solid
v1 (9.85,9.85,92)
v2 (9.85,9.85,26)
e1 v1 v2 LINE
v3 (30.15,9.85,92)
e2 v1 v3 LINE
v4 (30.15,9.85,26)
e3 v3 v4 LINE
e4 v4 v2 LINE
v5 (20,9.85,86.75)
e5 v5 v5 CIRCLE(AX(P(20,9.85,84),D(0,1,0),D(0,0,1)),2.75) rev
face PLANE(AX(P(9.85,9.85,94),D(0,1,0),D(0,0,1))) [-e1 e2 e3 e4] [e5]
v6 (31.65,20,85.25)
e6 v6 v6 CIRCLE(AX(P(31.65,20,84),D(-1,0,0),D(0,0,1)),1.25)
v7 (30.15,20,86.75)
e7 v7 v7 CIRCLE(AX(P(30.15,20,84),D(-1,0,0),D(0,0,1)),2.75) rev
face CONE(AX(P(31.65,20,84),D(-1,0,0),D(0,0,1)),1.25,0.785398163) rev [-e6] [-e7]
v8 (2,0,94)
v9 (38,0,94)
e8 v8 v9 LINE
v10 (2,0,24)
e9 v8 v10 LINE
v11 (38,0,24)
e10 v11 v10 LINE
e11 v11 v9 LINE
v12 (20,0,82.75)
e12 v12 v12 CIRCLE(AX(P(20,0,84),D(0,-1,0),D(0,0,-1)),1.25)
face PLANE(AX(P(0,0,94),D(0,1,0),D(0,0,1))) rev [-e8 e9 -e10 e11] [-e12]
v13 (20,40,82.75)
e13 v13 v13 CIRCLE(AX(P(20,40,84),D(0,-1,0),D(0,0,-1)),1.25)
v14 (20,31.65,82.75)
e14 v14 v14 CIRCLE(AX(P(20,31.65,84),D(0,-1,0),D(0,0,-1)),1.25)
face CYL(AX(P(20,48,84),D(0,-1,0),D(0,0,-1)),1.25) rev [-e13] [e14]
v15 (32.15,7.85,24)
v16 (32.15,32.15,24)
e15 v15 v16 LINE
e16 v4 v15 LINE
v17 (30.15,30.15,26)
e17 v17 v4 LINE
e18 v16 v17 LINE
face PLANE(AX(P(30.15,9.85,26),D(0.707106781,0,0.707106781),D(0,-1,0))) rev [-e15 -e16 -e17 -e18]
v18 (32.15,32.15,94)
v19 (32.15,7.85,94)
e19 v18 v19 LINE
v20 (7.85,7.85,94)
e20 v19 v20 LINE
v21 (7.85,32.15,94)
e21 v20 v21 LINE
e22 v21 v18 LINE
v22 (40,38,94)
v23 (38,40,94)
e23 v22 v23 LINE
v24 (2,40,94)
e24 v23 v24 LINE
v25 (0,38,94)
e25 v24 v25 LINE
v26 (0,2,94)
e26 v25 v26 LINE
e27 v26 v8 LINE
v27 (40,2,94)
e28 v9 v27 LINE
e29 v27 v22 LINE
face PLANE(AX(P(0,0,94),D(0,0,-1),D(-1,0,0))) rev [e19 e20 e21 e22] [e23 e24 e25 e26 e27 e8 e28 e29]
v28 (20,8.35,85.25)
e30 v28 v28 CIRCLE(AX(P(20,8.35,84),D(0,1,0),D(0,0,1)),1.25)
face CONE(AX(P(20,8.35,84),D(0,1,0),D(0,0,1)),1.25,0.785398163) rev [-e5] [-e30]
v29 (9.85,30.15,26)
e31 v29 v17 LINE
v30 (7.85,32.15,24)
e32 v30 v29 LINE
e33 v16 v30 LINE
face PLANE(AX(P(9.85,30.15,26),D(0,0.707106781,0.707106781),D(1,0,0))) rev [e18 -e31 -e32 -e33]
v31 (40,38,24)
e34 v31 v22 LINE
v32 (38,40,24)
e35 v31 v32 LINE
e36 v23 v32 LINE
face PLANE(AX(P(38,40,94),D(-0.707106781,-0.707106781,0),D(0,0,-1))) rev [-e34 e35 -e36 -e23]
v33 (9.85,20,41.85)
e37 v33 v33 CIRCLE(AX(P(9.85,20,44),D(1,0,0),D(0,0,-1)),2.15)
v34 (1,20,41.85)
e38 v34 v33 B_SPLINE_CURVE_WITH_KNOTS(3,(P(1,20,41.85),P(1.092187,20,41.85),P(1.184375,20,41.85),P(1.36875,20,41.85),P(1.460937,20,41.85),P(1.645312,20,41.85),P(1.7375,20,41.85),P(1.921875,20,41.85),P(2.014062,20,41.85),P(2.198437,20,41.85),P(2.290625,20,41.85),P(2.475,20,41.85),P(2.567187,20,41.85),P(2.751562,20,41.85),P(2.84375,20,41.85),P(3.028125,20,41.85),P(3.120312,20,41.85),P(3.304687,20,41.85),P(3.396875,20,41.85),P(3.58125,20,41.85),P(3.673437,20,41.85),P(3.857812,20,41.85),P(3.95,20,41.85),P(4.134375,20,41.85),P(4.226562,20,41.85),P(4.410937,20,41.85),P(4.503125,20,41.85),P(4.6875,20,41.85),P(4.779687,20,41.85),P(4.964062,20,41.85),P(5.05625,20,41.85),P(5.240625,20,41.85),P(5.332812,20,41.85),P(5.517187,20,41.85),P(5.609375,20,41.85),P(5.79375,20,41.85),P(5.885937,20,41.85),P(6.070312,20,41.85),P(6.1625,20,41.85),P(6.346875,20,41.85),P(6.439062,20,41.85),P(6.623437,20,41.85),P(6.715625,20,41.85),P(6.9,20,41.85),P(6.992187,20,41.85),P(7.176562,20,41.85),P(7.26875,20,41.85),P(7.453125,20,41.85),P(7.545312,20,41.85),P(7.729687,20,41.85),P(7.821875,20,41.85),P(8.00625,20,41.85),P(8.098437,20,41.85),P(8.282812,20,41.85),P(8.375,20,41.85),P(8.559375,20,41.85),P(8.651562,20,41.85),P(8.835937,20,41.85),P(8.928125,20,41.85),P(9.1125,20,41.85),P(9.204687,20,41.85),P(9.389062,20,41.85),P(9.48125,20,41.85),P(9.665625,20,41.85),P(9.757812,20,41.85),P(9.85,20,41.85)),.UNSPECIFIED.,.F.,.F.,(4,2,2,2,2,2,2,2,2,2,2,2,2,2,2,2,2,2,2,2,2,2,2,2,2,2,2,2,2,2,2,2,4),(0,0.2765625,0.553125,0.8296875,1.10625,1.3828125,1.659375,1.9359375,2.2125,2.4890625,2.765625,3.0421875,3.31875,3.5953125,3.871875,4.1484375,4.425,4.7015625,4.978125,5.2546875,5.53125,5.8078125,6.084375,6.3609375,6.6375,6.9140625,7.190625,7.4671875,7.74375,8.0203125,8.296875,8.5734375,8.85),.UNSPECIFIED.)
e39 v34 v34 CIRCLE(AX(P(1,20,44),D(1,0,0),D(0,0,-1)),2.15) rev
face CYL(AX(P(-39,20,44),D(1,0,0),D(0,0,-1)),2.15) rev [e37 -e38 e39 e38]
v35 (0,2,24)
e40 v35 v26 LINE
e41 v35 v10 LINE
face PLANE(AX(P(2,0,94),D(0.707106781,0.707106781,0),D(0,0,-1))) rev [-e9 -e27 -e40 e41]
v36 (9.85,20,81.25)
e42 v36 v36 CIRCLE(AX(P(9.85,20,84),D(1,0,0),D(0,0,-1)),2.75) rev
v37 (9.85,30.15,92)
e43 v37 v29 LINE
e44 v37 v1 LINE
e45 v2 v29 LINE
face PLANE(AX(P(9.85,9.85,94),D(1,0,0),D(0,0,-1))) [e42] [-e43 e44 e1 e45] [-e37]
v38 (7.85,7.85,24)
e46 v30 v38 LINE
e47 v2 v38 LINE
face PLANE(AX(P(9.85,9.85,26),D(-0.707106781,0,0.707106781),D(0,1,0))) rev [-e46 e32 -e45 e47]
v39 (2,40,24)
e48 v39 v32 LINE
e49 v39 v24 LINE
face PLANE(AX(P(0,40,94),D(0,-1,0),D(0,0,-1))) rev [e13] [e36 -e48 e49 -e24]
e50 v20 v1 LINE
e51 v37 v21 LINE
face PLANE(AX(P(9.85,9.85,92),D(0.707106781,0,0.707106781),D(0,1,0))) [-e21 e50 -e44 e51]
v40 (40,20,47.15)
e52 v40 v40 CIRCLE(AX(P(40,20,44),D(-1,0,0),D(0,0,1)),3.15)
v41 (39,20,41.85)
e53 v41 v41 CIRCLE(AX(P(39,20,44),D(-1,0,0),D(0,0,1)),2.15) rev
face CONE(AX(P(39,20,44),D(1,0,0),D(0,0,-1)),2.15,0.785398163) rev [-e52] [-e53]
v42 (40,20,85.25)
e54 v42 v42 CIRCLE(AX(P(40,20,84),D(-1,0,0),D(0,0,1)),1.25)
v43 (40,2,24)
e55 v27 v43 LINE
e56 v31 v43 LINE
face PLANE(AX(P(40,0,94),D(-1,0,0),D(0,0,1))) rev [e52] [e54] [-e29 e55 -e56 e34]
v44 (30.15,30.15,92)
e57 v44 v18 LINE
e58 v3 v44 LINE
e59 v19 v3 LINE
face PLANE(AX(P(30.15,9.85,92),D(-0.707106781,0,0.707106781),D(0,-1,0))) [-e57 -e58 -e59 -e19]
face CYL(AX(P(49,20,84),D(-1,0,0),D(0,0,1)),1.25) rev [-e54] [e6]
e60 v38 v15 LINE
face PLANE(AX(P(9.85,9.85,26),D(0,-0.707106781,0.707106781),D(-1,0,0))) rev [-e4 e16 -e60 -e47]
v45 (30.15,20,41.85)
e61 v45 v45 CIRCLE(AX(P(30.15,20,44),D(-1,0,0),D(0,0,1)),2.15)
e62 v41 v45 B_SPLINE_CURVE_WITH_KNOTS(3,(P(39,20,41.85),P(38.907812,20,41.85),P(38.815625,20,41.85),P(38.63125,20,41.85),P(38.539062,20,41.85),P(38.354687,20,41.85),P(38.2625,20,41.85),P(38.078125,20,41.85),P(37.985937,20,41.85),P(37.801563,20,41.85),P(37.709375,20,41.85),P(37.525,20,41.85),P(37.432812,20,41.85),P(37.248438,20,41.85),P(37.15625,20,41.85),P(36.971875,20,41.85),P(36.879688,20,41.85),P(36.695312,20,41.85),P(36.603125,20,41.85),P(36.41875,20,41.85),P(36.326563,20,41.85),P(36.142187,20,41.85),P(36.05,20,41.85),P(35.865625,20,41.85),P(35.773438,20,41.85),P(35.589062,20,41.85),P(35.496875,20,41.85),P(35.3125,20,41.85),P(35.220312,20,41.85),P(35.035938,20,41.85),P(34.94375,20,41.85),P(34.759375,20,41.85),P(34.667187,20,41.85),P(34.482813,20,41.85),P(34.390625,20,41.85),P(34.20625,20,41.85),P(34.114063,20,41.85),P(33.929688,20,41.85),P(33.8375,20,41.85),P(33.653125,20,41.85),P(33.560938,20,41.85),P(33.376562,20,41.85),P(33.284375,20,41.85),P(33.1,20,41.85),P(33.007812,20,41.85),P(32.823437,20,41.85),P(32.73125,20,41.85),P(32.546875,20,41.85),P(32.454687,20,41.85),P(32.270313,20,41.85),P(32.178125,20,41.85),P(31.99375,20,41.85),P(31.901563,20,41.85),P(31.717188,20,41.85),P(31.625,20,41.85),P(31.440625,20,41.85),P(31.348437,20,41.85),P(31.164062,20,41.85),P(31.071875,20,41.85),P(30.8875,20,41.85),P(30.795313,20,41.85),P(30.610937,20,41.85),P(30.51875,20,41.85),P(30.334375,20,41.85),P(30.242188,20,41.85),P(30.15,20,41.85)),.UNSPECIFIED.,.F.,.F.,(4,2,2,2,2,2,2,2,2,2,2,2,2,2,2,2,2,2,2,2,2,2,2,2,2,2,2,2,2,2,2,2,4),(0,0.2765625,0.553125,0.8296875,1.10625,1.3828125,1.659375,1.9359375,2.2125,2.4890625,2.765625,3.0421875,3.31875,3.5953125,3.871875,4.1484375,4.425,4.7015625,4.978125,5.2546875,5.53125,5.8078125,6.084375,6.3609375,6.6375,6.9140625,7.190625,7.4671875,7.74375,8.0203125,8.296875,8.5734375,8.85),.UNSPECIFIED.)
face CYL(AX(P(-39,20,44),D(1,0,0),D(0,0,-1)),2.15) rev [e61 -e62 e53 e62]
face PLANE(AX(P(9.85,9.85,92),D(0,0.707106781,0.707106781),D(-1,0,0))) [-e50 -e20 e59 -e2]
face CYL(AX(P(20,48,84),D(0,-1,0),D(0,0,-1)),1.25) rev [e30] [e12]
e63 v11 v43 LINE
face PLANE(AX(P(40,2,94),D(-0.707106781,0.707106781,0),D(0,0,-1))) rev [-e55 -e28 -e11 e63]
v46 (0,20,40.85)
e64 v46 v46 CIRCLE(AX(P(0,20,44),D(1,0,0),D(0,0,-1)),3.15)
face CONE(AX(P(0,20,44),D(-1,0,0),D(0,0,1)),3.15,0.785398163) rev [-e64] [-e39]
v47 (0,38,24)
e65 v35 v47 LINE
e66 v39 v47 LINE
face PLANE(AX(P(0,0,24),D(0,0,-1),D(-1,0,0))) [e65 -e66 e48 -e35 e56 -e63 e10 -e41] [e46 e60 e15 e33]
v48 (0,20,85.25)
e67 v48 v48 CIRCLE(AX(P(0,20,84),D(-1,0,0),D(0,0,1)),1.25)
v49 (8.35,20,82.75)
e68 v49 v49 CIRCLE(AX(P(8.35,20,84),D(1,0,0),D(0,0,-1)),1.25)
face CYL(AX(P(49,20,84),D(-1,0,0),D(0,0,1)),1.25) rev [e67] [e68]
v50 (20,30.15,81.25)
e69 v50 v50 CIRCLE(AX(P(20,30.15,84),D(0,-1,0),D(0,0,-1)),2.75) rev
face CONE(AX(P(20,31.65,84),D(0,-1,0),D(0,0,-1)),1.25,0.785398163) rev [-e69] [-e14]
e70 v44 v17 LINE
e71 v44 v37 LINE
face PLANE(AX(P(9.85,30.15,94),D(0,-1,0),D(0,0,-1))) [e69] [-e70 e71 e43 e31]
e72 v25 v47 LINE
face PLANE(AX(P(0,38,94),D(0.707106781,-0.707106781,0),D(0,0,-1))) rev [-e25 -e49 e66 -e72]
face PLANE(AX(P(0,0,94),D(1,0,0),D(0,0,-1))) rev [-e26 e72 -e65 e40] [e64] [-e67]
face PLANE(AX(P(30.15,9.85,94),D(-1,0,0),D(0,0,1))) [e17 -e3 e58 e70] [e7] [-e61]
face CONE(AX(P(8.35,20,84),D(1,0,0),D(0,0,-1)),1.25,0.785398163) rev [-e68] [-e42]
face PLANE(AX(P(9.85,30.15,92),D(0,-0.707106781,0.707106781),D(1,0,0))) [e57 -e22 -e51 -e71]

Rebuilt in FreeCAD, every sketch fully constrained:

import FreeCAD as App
import Part
import Sketcher
from FreeCAD import Vector
Q = App.Units.Quantity


def edges_at(feature, points):
    """Names of the edges that pass closest to the given points."""
    edges = feature.Shape.Edges
    near = lambda p: min(range(len(edges)), key=lambda i: edges[i].distToShape(Part.Vertex(*p))[0])
    return sorted({f"Edge{near(p) + 1}" for p in points})

doc = App.newDocument("Part")
body = doc.addObject("PartDesign::Body", "Body")

sketch1 = body.newObject("Sketcher::SketchObject", "Sketch")
sketch1.AttachmentSupport = (doc.getObject("XY_Plane"), [""])
sketch1.MapMode = "FlatFace"
sketch1.addGeometry([
    Part.LineSegment(Vector(0, 40, 0), Vector(0, 0, 0)),
    Part.LineSegment(Vector(0, 0, 0), Vector(40, 0, 0)),
    Part.LineSegment(Vector(40, 0, 0), Vector(40, 40, 0)),
    Part.LineSegment(Vector(40, 40, 0), Vector(0, 40, 0)),
    Part.LineSegment(Vector(30, 10, 0), Vector(10, 10, 0)),
    Part.LineSegment(Vector(10, 10, 0), Vector(10, 30, 0)),
    Part.LineSegment(Vector(10, 30, 0), Vector(30, 30, 0)),
    Part.LineSegment(Vector(30, 30, 0), Vector(30, 10, 0)),
], False)
sketch1.addConstraint([
    Sketcher.Constraint("Coincident", 0, 2, 1, 1),
    Sketcher.Constraint("Coincident", 1, 2, 2, 1),
    Sketcher.Constraint("Coincident", 2, 2, 3, 1),
    Sketcher.Constraint("Coincident", 3, 2, 0, 1),
    Sketcher.Constraint("Coincident", 4, 2, 5, 1),
    Sketcher.Constraint("Coincident", 5, 2, 6, 1),
    Sketcher.Constraint("Coincident", 6, 2, 7, 1),
    Sketcher.Constraint("Coincident", 7, 2, 4, 1),
    Sketcher.Constraint("Vertical", 0),
    Sketcher.Constraint("Horizontal", 1),
    Sketcher.Constraint("Vertical", 2),
    Sketcher.Constraint("Horizontal", 3),
    Sketcher.Constraint("Horizontal", 4),
    Sketcher.Constraint("Vertical", 5),
    Sketcher.Constraint("Horizontal", 6),
    Sketcher.Constraint("Vertical", 7),
    Sketcher.Constraint("Coincident", 0, 2, -1, 1),
    Sketcher.Constraint("Equal", 3, 0),
    Sketcher.Constraint("Equal", 6, 5),
    Sketcher.Constraint("DistanceX", 1, 1, 1, 2, Q("40 mm")),
    Sketcher.Constraint("DistanceX", 4, 2, 4, 1, Q("20.3 mm")),
    Sketcher.Constraint("DistanceX", -1, 1, 4, 2, Q("9.85 mm")),
    Sketcher.Constraint("DistanceY", -1, 1, 4, 2, Q("9.85 mm")),
])
pad1 = body.newObject("PartDesign::Pad", "Pad")
pad1.Profile = sketch1
pad1.Length = 94
doc.recompute()

chamfer = body.newObject("PartDesign::Chamfer", "Chamfer")
chamfer.Base = (pad1, edges_at(pad1, [
    (9.85, 20, 94),
    (20, 9.85, 94),
    (30.15, 20, 94),
    (20, 30.15, 94),
]))
chamfer.Size = 2
doc.recompute()

chamfer2 = body.newObject("PartDesign::Chamfer", "Chamfer001")
chamfer2.Base = (chamfer, edges_at(chamfer, [
    (0, 40, 47),
    (40, 40, 47),
    (40, 0, 47),
    (0, 0, 47),
]))
chamfer2.Size = 2

sketch2 = body.newObject("Sketcher::SketchObject", "Sketch001")
sketch2.AttachmentSupport = (doc.getObject("XZ_Plane"), [""])
sketch2.MapMode = "FlatFace"
sketch2.addGeometry(Part.Circle(Vector(20, 84, 0), Vector(0, 0, 1), 1.2), False)
sketch2.addConstraint([
    Sketcher.Constraint("Diameter", 0, Q("2.5 mm")),
    Sketcher.Constraint("DistanceX", -1, 1, 0, 3, Q("20 mm")),
    Sketcher.Constraint("DistanceY", -1, 1, 0, 3, Q("84 mm")),
])
pocket1 = body.newObject("PartDesign::Pocket", "Pocket")
pocket1.Profile = sketch2
pocket1.Length = 48

sketch3 = body.newObject("Sketcher::SketchObject", "Sketch002")
sketch3.AttachmentSupport = (doc.getObject("YZ_Plane"), [""])
sketch3.MapMode = "FlatFace"
sketch3.AttachmentOffset = App.Placement(Vector(0, 0, 40), App.Rotation())
sketch3.addGeometry(Part.Circle(Vector(20, 44, 0), Vector(0, 0, 1), 2.1), False)
sketch3.addConstraint([
    Sketcher.Constraint("Diameter", 0, Q("4.3 mm")),
    Sketcher.Constraint("DistanceX", -1, 1, 0, 3, Q("20 mm")),
    Sketcher.Constraint("DistanceY", -1, 1, 0, 3, Q("44 mm")),
])
pocket2 = body.newObject("PartDesign::Pocket", "Pocket001")
pocket2.Profile = sketch3
pocket2.Length = 79
doc.recompute()

chamfer3 = body.newObject("PartDesign::Chamfer", "Chamfer002")
chamfer3.Base = (pocket2, edges_at(pocket2, [(0, 20, 46.15), (40, 20, 46.15)]))
chamfer3.Size = 1

sketch4 = body.newObject("Sketcher::SketchObject", "Sketch003")
sketch4.AttachmentSupport = (doc.getObject("XY_Plane"), [""])
sketch4.MapMode = "FlatFace"
sketch4.addGeometry([
    Part.LineSegment(Vector(51, 44, 0), Vector(51, -10, 0)),
    Part.LineSegment(Vector(51, -10, 0), Vector(-14, -10, 0)),
    Part.LineSegment(Vector(-14, -10, 0), Vector(-14, 44, 0)),
    Part.LineSegment(Vector(-14, 44, 0), Vector(51, 44, 0)),
], False)
sketch4.addConstraint([
    Sketcher.Constraint("Coincident", 0, 2, 1, 1),
    Sketcher.Constraint("Coincident", 1, 2, 2, 1),
    Sketcher.Constraint("Coincident", 2, 2, 3, 1),
    Sketcher.Constraint("Coincident", 3, 2, 0, 1),
    Sketcher.Constraint("Vertical", 0),
    Sketcher.Constraint("Horizontal", 1),
    Sketcher.Constraint("Vertical", 2),
    Sketcher.Constraint("Horizontal", 3),
    Sketcher.Constraint("DistanceX", 1, 2, 1, 1, Q("65.895063 mm")),
    Sketcher.Constraint("DistanceY", 0, 2, 0, 1, Q("54.143077 mm")),
    Sketcher.Constraint("DistanceX", -1, 1, 0, 2, Q("51.436618 mm")),
    Sketcher.Constraint("DistanceY", 0, 2, -1, 1, Q("9.925592 mm")),
])
pocket3 = body.newObject("PartDesign::Pocket", "Pocket002")
pocket3.Profile = sketch4
pocket3.Length = 24
pocket3.Reversed = True

sketch5 = body.newObject("Sketcher::SketchObject", "Sketch004")
sketch5.AttachmentSupport = (doc.getObject("YZ_Plane"), [""])
sketch5.MapMode = "FlatFace"
sketch5.addGeometry(Part.Circle(Vector(20, 84, 0), Vector(0, 0, 1), 1.2), False)
sketch5.addConstraint([
    Sketcher.Constraint("Diameter", 0, Q("2.5 mm")),
    Sketcher.Constraint("DistanceX", -1, 1, 0, 3, Q("20 mm")),
    Sketcher.Constraint("DistanceY", -1, 1, 0, 3, Q("84 mm")),
])
pocket4 = body.newObject("PartDesign::Pocket", "Pocket003")
pocket4.Profile = sketch5
pocket4.Length = 49
pocket4.Reversed = True
doc.recompute()

chamfer4 = body.newObject("PartDesign::Chamfer", "Chamfer003")
chamfer4.Base = (pocket4, edges_at(pocket4, [
    (30.15, 20, 82.75),
    (9.85, 20, 82.75),
    (20, 30.15, 85.25),
    (20, 9.85, 85.25),
]))
chamfer4.Size = 1.5
doc.recompute()

chamfer5 = body.newObject("PartDesign::Chamfer", "Chamfer004")
chamfer5.Base = (chamfer4, edges_at(chamfer4, [
    (20, 9.85, 24),
    (9.85, 20, 24),
    (20, 30.15, 24),
    (30.15, 20, 24),
]))
chamfer5.Size = 2

doc.recompute()
